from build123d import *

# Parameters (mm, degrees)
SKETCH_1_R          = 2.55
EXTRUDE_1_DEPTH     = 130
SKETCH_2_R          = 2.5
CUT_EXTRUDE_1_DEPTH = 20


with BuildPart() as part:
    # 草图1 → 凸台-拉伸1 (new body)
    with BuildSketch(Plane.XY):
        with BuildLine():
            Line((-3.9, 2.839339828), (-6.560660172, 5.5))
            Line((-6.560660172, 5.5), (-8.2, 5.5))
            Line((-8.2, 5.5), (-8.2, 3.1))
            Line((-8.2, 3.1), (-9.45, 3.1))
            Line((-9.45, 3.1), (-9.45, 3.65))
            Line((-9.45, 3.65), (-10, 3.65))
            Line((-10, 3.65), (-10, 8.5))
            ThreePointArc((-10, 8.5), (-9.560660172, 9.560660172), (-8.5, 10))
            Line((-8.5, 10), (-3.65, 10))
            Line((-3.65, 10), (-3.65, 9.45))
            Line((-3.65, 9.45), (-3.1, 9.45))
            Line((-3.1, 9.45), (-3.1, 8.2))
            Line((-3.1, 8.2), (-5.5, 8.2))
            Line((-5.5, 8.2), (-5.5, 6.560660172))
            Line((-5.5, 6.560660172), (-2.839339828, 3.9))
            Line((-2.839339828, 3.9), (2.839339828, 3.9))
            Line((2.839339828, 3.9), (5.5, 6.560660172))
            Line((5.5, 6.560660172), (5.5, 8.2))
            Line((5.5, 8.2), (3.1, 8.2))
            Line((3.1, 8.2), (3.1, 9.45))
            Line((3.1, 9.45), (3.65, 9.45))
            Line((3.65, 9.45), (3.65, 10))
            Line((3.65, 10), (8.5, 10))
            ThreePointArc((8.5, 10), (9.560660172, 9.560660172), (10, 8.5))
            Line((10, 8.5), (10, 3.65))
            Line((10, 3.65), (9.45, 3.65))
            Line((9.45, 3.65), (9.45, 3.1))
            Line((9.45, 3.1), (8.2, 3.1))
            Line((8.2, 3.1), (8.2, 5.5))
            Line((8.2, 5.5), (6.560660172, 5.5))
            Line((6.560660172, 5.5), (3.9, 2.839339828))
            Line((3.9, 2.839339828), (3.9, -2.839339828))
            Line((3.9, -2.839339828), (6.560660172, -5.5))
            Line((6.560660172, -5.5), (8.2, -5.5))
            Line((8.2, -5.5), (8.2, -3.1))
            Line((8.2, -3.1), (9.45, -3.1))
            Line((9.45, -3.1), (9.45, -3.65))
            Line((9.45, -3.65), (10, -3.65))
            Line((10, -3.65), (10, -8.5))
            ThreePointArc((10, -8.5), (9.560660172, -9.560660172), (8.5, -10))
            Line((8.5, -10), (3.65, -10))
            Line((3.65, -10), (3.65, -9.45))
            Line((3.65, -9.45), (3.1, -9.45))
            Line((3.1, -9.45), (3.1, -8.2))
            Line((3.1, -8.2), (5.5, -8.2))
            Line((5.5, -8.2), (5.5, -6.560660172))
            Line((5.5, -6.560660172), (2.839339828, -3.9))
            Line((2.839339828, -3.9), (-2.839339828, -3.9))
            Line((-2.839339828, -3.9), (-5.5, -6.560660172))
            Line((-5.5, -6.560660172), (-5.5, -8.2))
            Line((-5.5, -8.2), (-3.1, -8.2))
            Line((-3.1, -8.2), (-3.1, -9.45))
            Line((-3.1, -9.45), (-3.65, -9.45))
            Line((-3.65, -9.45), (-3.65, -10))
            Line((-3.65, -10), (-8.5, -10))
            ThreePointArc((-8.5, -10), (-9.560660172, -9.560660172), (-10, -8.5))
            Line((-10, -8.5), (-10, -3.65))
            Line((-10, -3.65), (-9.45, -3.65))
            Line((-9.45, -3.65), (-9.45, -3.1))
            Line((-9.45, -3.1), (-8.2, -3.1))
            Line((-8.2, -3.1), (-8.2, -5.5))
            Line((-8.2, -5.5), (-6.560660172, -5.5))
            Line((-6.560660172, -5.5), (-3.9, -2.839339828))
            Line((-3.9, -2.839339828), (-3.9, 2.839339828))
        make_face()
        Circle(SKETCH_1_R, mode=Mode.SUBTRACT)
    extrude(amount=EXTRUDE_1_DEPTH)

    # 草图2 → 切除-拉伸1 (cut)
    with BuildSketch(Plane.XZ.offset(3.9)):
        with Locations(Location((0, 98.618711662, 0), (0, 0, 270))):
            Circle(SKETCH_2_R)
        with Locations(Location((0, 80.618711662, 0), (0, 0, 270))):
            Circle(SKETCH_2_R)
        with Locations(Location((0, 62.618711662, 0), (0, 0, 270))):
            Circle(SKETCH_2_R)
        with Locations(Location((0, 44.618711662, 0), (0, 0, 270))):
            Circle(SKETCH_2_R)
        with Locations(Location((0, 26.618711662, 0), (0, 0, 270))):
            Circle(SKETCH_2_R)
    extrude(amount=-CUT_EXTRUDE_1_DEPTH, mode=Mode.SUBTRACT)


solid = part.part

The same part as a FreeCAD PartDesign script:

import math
import FreeCAD as App
import Part
import Sketcher

V = App.Vector
Q = App.Units.Quantity

doc = App.newDocument("Part")
body = doc.addObject("PartDesign::Body", "Body")

sketch1 = body.newObject("Sketcher::SketchObject", "Sketch")
sketch1.AttachmentSupport = (doc.getObject("XY_Plane"), [""])
sketch1.MapMode = "FlatFace"
sketch1.addGeometry([
    Part.LineSegment(V(-6.6, 5.5, 0), V(-3.9, 2.8, 0)),
    Part.LineSegment(V(-3.9, 2.8, 0), V(-3.9, -2.8, 0)),
    Part.LineSegment(V(-3.9, -2.8, 0), V(-6.6, -5.5, 0)),
    Part.LineSegment(V(-6.6, -5.5, 0), V(-8.2, -5.5, 0)),
    Part.LineSegment(V(-8.2, -5.5, 0), V(-8.2, -3.1, 0)),
    Part.LineSegment(V(-8.2, -3.1, 0), V(-9.4, -3.1, 0)),
    Part.LineSegment(V(-9.4, -3.1, 0), V(-9.4, -3.6, 0)),
    Part.LineSegment(V(-9.4, -3.6, 0), V(-10, -3.6, 0)),
    Part.LineSegment(V(-10, -3.6, 0), V(-10, -8.5, 0)),
    Part.ArcOfCircle(Part.Circle(V(-8.5, -8.5, 0), V(0, 0, 1), 1.5), math.radians(180), math.radians(270)),
    Part.LineSegment(V(-8.5, -10, 0), V(-3.6, -10, 0)),
    Part.LineSegment(V(-3.6, -10, 0), V(-3.6, -9.4, 0)),
    Part.LineSegment(V(-3.6, -9.4, 0), V(-3.1, -9.4, 0)),
    Part.LineSegment(V(-3.1, -9.4, 0), V(-3.1, -8.2, 0)),
    Part.LineSegment(V(-3.1, -8.2, 0), V(-5.5, -8.2, 0)),
    Part.LineSegment(V(-5.5, -8.2, 0), V(-5.5, -6.6, 0)),
    Part.LineSegment(V(-5.5, -6.6, 0), V(-2.8, -3.9, 0)),
    Part.LineSegment(V(-2.8, -3.9, 0), V(2.8, -3.9, 0)),
    Part.LineSegment(V(2.8, -3.9, 0), V(5.5, -6.6, 0)),
    Part.LineSegment(V(5.5, -6.6, 0), V(5.5, -8.2, 0)),
    Part.LineSegment(V(5.5, -8.2, 0), V(3.1, -8.2, 0)),
    Part.LineSegment(V(3.1, -8.2, 0), V(3.1, -9.4, 0)),
    Part.LineSegment(V(3.1, -9.4, 0), V(3.6, -9.4, 0)),
    Part.LineSegment(V(3.6, -9.4, 0), V(3.6, -10, 0)),
    Part.LineSegment(V(3.6, -10, 0), V(8.5, -10, 0)),
    Part.ArcOfCircle(Part.Circle(V(8.5, -8.5, 0), V(0, 0, 1), 1.5), math.radians(-90), math.radians(0)),
    Part.LineSegment(V(10, -8.5, 0), V(10, -3.6, 0)),
    Part.LineSegment(V(10, -3.6, 0), V(9.4, -3.6, 0)),
    Part.LineSegment(V(9.4, -3.6, 0), V(9.4, -3.1, 0)),
    Part.LineSegment(V(9.4, -3.1, 0), V(8.2, -3.1, 0)),
    Part.LineSegment(V(8.2, -3.1, 0), V(8.2, -5.5, 0)),
    Part.LineSegment(V(8.2, -5.5, 0), V(6.6, -5.5, 0)),
    Part.LineSegment(V(6.6, -5.5, 0), V(3.9, -2.8, 0)),
    Part.LineSegment(V(3.9, -2.8, 0), V(3.9, 2.8, 0)),
    Part.LineSegment(V(3.9, 2.8, 0), V(6.6, 5.5, 0)),
    Part.LineSegment(V(6.6, 5.5, 0), V(8.2, 5.5, 0)),
    Part.LineSegment(V(8.2, 5.5, 0), V(8.2, 3.1, 0)),
    Part.LineSegment(V(8.2, 3.1, 0), V(9.4, 3.1, 0)),
    Part.LineSegment(V(9.4, 3.1, 0), V(9.4, 3.6, 0)),
    Part.LineSegment(V(9.4, 3.6, 0), V(10, 3.6, 0)),
    Part.LineSegment(V(10, 3.6, 0), V(10, 8.5, 0)),
    Part.ArcOfCircle(Part.Circle(V(8.5, 8.5, 0), V(0, 0, 1), 1.5), math.radians(0), math.radians(90)),
    Part.LineSegment(V(8.5, 10, 0), V(3.6, 10, 0)),
    Part.LineSegment(V(3.6, 10, 0), V(3.6, 9.4, 0)),
    Part.LineSegment(V(3.6, 9.4, 0), V(3.1, 9.4, 0)),
    Part.LineSegment(V(3.1, 9.4, 0), V(3.1, 8.2, 0)),
    Part.LineSegment(V(3.1, 8.2, 0), V(5.5, 8.2, 0)),
    Part.LineSegment(V(5.5, 8.2, 0), V(5.5, 6.6, 0)),
    Part.LineSegment(V(5.5, 6.6, 0), V(2.8, 3.9, 0)),
    Part.LineSegment(V(2.8, 3.9, 0), V(-2.8, 3.9, 0)),
    Part.LineSegment(V(-2.8, 3.9, 0), V(-5.5, 6.6, 0)),
    Part.LineSegment(V(-5.5, 6.6, 0), V(-5.5, 8.2, 0)),
    Part.LineSegment(V(-5.5, 8.2, 0), V(-3.1, 8.2, 0)),
    Part.LineSegment(V(-3.1, 8.2, 0), V(-3.1, 9.4, 0)),
    Part.LineSegment(V(-3.1, 9.4, 0), V(-3.6, 9.4, 0)),
    Part.LineSegment(V(-3.6, 9.4, 0), V(-3.6, 10, 0)),
    Part.LineSegment(V(-3.6, 10, 0), V(-8.5, 10, 0)),
    Part.ArcOfCircle(Part.Circle(V(-8.5, 8.5, 0), V(0, 0, 1), 1.5), math.radians(90), math.radians(180)),
    Part.LineSegment(V(-10, 8.5, 0), V(-10, 3.6, 0)),
    Part.LineSegment(V(-10, 3.6, 0), V(-9.4, 3.6, 0)),
    Part.LineSegment(V(-9.4, 3.6, 0), V(-9.4, 3.1, 0)),
    Part.LineSegment(V(-9.4, 3.1, 0), V(-8.2, 3.1, 0)),
    Part.LineSegment(V(-8.2, 3.1, 0), V(-8.2, 5.5, 0)),
    Part.LineSegment(V(-8.2, 5.5, 0), V(-6.6, 5.5, 0)),
    Part.Circle(V(0, 0, 0), V(0, 0, 1), 2.5),
], False)
sketch1.addConstraint([
    Sketcher.Constraint("Coincident", 0, 2, 1, 1),
    Sketcher.Constraint("Coincident", 1, 2, 2, 1),
    Sketcher.Constraint("Coincident", 2, 2, 3, 1),
    Sketcher.Constraint("Coincident", 3, 2, 4, 1),
    Sketcher.Constraint("Coincident", 4, 2, 5, 1),
    Sketcher.Constraint("Coincident", 5, 2, 6, 1),
    Sketcher.Constraint("Coincident", 6, 2, 7, 1),
    Sketcher.Constraint("Coincident", 7, 2, 8, 1),
    Sketcher.Constraint("Tangent", 8, 2, 9, 1),
    Sketcher.Constraint("Tangent", 9, 2, 10, 1),
    Sketcher.Constraint("Coincident", 10, 2, 11, 1),
    Sketcher.Constraint("Coincident", 11, 2, 12, 1),
    Sketcher.Constraint("Coincident", 12, 2, 13, 1),
    Sketcher.Constraint("Coincident", 13, 2, 14, 1),
    Sketcher.Constraint("Coincident", 14, 2, 15, 1),
    Sketcher.Constraint("Coincident", 15, 2, 16, 1),
    Sketcher.Constraint("Coincident", 16, 2, 17, 1),
    Sketcher.Constraint("Coincident", 17, 2, 18, 1),
    Sketcher.Constraint("Coincident", 18, 2, 19, 1),
    Sketcher.Constraint("Coincident", 19, 2, 20, 1),
    Sketcher.Constraint("Coincident", 20, 2, 21, 1),
    Sketcher.Constraint("Coincident", 21, 2, 22, 1),
    Sketcher.Constraint("Coincident", 22, 2, 23, 1),
    Sketcher.Constraint("Coincident", 23, 2, 24, 1),
    Sketcher.Constraint("Tangent", 24, 2, 25, 1),
    Sketcher.Constraint("Tangent", 25, 2, 26, 1),
    Sketcher.Constraint("Coincident", 26, 2, 27, 1),
    Sketcher.Constraint("Coincident", 27, 2, 28, 1),
    Sketcher.Constraint("Coincident", 28, 2, 29, 1),
    Sketcher.Constraint("Coincident", 29, 2, 30, 1),
    Sketcher.Constraint("Coincident", 30, 2, 31, 1),
    Sketcher.Constraint("Coincident", 31, 2, 32, 1),
    Sketcher.Constraint("Coincident", 32, 2, 33, 1),
    Sketcher.Constraint("Coincident", 33, 2, 34, 1),
    Sketcher.Constraint("Coincident", 34, 2, 35, 1),
    Sketcher.Constraint("Coincident", 35, 2, 36, 1),
    Sketcher.Constraint("Coincident", 36, 2, 37, 1),
    Sketcher.Constraint("Coincident", 37, 2, 38, 1),
    Sketcher.Constraint("Coincident", 38, 2, 39, 1),
    Sketcher.Constraint("Coincident", 39, 2, 40, 1),
    Sketcher.Constraint("Tangent", 40, 2, 41, 1),
    Sketcher.Constraint("Tangent", 41, 2, 42, 1),
    Sketcher.Constraint("Coincident", 42, 2, 43, 1),
    Sketcher.Constraint("Coincident", 43, 2, 44, 1),
    Sketcher.Constraint("Coincident", 44, 2, 45, 1),
    Sketcher.Constraint("Coincident", 45, 2, 46, 1),
    Sketcher.Constraint("Coincident", 46, 2, 47, 1),
    Sketcher.Constraint("Coincident", 47, 2, 48, 1),
    Sketcher.Constraint("Coincident", 48, 2, 49, 1),
    Sketcher.Constraint("Coincident", 49, 2, 50, 1),
    Sketcher.Constraint("Coincident", 50, 2, 51, 1),
    Sketcher.Constraint("Coincident", 51, 2, 52, 1),
    Sketcher.Constraint("Coincident", 52, 2, 53, 1),
    Sketcher.Constraint("Coincident", 53, 2, 54, 1),
    Sketcher.Constraint("Coincident", 54, 2, 55, 1),
    Sketcher.Constraint("Coincident", 55, 2, 56, 1),
    Sketcher.Constraint("Tangent", 56, 2, 57, 1),
    Sketcher.Constraint("Tangent", 57, 2, 58, 1),
    Sketcher.Constraint("Coincident", 58, 2, 59, 1),
    Sketcher.Constraint("Coincident", 59, 2, 60, 1),
    Sketcher.Constraint("Coincident", 60, 2, 61, 1),
    Sketcher.Constraint("Coincident", 61, 2, 62, 1),
    Sketcher.Constraint("Coincident", 62, 2, 63, 1),
    Sketcher.Constraint("Coincident", 63, 2, 0, 1),
    Sketcher.Constraint("Vertical", 1),
    Sketcher.Constraint("Horizontal", 3),
    Sketcher.Constraint("Vertical", 4),
    Sketcher.Constraint("Horizontal", 5),
    Sketcher.Constraint("Vertical", 6),
    Sketcher.Constraint("Horizontal", 7),
    Sketcher.Constraint("Vertical", 8),
    Sketcher.Constraint("Horizontal", 10),
    Sketcher.Constraint("Vertical", 11),
    Sketcher.Constraint("Horizontal", 12),
    Sketcher.Constraint("Vertical", 13),
    Sketcher.Constraint("Horizontal", 14),
    Sketcher.Constraint("Vertical", 15),
    Sketcher.Constraint("Horizontal", 17),
    Sketcher.Constraint("Vertical", 19),
    Sketcher.Constraint("Horizontal", 20),
    Sketcher.Constraint("Vertical", 21),
    Sketcher.Constraint("Horizontal", 22),
    Sketcher.Constraint("Vertical", 23),
    Sketcher.Constraint("Horizontal", 24),
    Sketcher.Constraint("Vertical", 26),
    Sketcher.Constraint("Horizontal", 27),
    Sketcher.Constraint("Vertical", 28),
    Sketcher.Constraint("Horizontal", 29),
    Sketcher.Constraint("Vertical", 30),
    Sketcher.Constraint("Horizontal", 31),
    Sketcher.Constraint("Vertical", 33),
    Sketcher.Constraint("Horizontal", 35),
    Sketcher.Constraint("Vertical", 36),
    Sketcher.Constraint("Horizontal", 37),
    Sketcher.Constraint("Vertical", 38),
    Sketcher.Constraint("Horizontal", 39),
    Sketcher.Constraint("Vertical", 40),
    Sketcher.Constraint("Horizontal", 42),
    Sketcher.Constraint("Vertical", 43),
    Sketcher.Constraint("Horizontal", 44),
    Sketcher.Constraint("Vertical", 45),
    Sketcher.Constraint("Horizontal", 46),
    Sketcher.Constraint("Vertical", 47),
    Sketcher.Constraint("Horizontal", 49),
    Sketcher.Constraint("Vertical", 51),
    Sketcher.Constraint("Horizontal", 52),
    Sketcher.Constraint("Vertical", 53),
    Sketcher.Constraint("Horizontal", 54),
    Sketcher.Constraint("Vertical", 55),
    Sketcher.Constraint("Horizontal", 56),
    Sketcher.Constraint("Vertical", 58),
    Sketcher.Constraint("Horizontal", 59),
    Sketcher.Constraint("Vertical", 60),
    Sketcher.Constraint("Horizontal", 61),
    Sketcher.Constraint("Vertical", 62),
    Sketcher.Constraint("Horizontal", 63),
    Sketcher.Constraint("Coincident", 64, 3, -1, 1),
    Sketcher.Constraint("Equal", 9, 25),
    Sketcher.Constraint("Equal", 25, 41),
    Sketcher.Constraint("Equal", 41, 57),
    Sketcher.Constraint("Symmetric", 9, 3, 41, 3, -1, 1),
    Sketcher.Constraint("Symmetric", 25, 3, 57, 3, -1, 1),
    Sketcher.Constraint("Symmetric", 0, 2, 32, 2, -1, 1),
    Sketcher.Constraint("Symmetric", 2, 2, 34, 2, -1, 1),
    Sketcher.Constraint("Symmetric", 4, 2, 36, 2, -1, 1),
    Sketcher.Constraint("Symmetric", 6, 2, 38, 2, -1, 1),
    Sketcher.Constraint("Symmetric", 11, 2, 43, 2, -1, 1),
    Sketcher.Constraint("Symmetric", 13, 2, 45, 2, -1, 1),
    Sketcher.Constraint("Symmetric", 15, 2, 47, 2, -1, 1),
    Sketcher.Constraint("Symmetric", 16, 2, 48, 2, -1, 1),
    Sketcher.Constraint("Symmetric", 18, 2, 50, 2, -1, 1),
    Sketcher.Constraint("Symmetric", 20, 2, 52, 2, -1, 1),
    Sketcher.Constraint("Symmetric", 22, 2, 54, 2, -1, 1),
    Sketcher.Constraint("Symmetric", 27, 2, 59, 2, -1, 1),
    Sketcher.Constraint("Symmetric", 29, 2, 61, 2, -1, 1),
    Sketcher.Constraint("Symmetric", 31, 2, 63, 2, -1, 1),
    Sketcher.Constraint("Symmetric", 9, 3, 25, 3, -2),
    Sketcher.Constraint("Symmetric", 15, 2, 18, 2, -2),
    Sketcher.Constraint("Symmetric", 13, 2, 20, 2, -2),
    Sketcher.Constraint("Symmetric", 11, 2, 22, 2, -2),
    Sketcher.Constraint("Symmetric", 6, 2, 27, 2, -2),
    Sketcher.Constraint("Symmetric", 4, 2, 29, 2, -2),
    Sketcher.Constraint("Symmetric", 2, 2, 31, 2, -2),
    Sketcher.Constraint("Perpendicular", 0, 2),
    Sketcher.Constraint("Parallel", 2, 16),
    Sketcher.Constraint("Perpendicular", 16, 18),
    Sketcher.Constraint("Perpendicular", 32, 34),
    Sketcher.Constraint("Perpendicular", 48, 50),
    Sketcher.Constraint("Horizontal", 1, 2, 32, 2),
    Sketcher.Constraint("Equal", 7, 12),
    Sketcher.Constraint("Equal", 49, 1),
    Sketcher.Constraint("Equal", 52, 4),
    Sketcher.Constraint("Equal", 59, 6),
    Sketcher.Constraint("Equal", 56, 8),
    Sketcher.Constraint("Equal", 6, 11),
    Sketcher.Constraint("Equal", 61, 13),
    Sketcher.Constraint("Equal", 63, 15),
    Sketcher.Constraint("Equal", 2, 16),
    Sketcher.Constraint("Diameter", 64, Q("5.1 mm")),
    Sketcher.Constraint("Radius", 9, Q("1.5 mm")),
    Sketcher.Constraint("DistanceX", 14, 2, 14, 1, Q("2.4 mm")),
    Sketcher.Constraint("DistanceX", 7, 2, -1, 1, Q("10 mm")),
    Sketcher.Constraint("DistanceX", 5, 2, 5, 1, Q("1.25 mm")),
    Sketcher.Constraint("DistanceX", 7, 2, 7, 1, Q("0.55 mm")),
    Sketcher.Constraint("DistanceX", 10, 1, 10, 2, Q("4.85 mm")),
    Sketcher.Constraint("DistanceX", 0, 2, -1, 1, Q("3.9 mm")),
    Sketcher.Constraint("DistanceX", 3, 2, 3, 1, Q("1.63934 mm")),
])
pad1 = body.newObject("PartDesign::Pad", "Pad")
pad1.Profile = sketch1
pad1.Length = 130

sketch2 = body.newObject("Sketcher::SketchObject", "Sketch001")
sketch2.AttachmentSupport = (doc.getObject("XZ_Plane"), [""])
sketch2.MapMode = "FlatFace"
sketch2.AttachmentOffset = App.Placement(V(0, 0, 3.9), App.Rotation())
sketch2.addGeometry([
    Part.Circle(V(0, 98.6, 0), V(0, 0, 1), 2.5),
    Part.Circle(V(0, 80.6, 0), V(0, 0, 1), 2.5),
    Part.Circle(V(0, 62.6, 0), V(0, 0, 1), 2.5),
    Part.Circle(V(0, 44.6, 0), V(0, 0, 1), 2.5),
    Part.Circle(V(0, 26.6, 0), V(0, 0, 1), 2.5),
], False)
sketch2.addConstraint([
    Sketcher.Constraint("Equal", 0, 1),
    Sketcher.Constraint("Equal", 1, 2),
    Sketcher.Constraint("Equal", 2, 3),
    Sketcher.Constraint("Equal", 3, 4),
    Sketcher.Constraint("PointOnObject", 0, 3, -2),
    Sketcher.Constraint("PointOnObject", 1, 3, -2),
    Sketcher.Constraint("PointOnObject", 2, 3, -2),
    Sketcher.Constraint("PointOnObject", 3, 3, -2),
    Sketcher.Constraint("PointOnObject", 4, 3, -2),
    Sketcher.Constraint("Diameter", 0, Q("5 mm")),
    Sketcher.Constraint("DistanceY", 1, 3, 0, 3, Q("18 mm")),
    Sketcher.Constraint("DistanceY", 2, 3, 1, 3, Q("18 mm")),
    Sketcher.Constraint("DistanceY", 3, 3, 2, 3, Q("18 mm")),
    Sketcher.Constraint("DistanceY", 4, 3, 3, 3, Q("18 mm")),
    Sketcher.Constraint("DistanceY", -1, 1, 0, 3, Q("98.618712 mm")),
])
pocket1 = body.newObject("PartDesign::Pocket", "Pocket")
pocket1.Profile = sketch2
pocket1.Length = 20

doc.recompute()
